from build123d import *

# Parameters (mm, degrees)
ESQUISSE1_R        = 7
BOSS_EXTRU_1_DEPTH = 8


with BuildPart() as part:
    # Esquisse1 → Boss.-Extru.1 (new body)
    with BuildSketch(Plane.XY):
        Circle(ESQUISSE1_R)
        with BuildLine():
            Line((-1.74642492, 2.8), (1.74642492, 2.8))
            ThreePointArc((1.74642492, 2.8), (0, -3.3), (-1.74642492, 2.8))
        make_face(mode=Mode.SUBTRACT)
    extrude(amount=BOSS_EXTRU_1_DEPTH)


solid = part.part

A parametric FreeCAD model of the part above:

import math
import FreeCAD as App
import Part
import Sketcher

V = App.Vector

doc = App.newDocument("Part")
body = doc.addObject("PartDesign::Body", "Body")

sketch1 = doc.addObject("Sketcher::SketchObject", "Sketch")
body.addObject(sketch1)
sketch1.AttachmentSupport = (doc.XY_Plane, [""])
sketch1.MapMode = "FlatFace"
sketch1.addGeometry([
    Part.Circle(V(0, 0, 0), V(0, 0, 1), 7),
    Part.ArcOfCircle(Part.Circle(V(0, 0, 0), V(0, 0, 1), 3.3), math.radians(122), math.radians(418)),
    Part.LineSegment(V(-1.7, 2.8, 0), V(1.7, 2.8, 0)),
], False)
sketch1.addConstraint([
    Sketcher.Constraint("Coincident", 1, 1, 2, 1),
    Sketcher.Constraint("Coincident", 2, 2, 1, 2),
    Sketcher.Constraint("Horizontal", 2),
    Sketcher.Constraint("Coincident", 0, 3, -1, 1),
    Sketcher.Constraint("Coincident", 1, 3, -1, 1),
    Sketcher.Constraint("Diameter", 0, 14.0),
    Sketcher.Constraint("Radius", 1, 3.3),
    Sketcher.Constraint("DistanceY", -1, 1, 1, 1, 2.8),
])
pad1 = doc.addObject("PartDesign::Pad", "Pad")
body.addObject(pad1)
pad1.Profile = sketch1
pad1.Length = 8

doc.recompute()
